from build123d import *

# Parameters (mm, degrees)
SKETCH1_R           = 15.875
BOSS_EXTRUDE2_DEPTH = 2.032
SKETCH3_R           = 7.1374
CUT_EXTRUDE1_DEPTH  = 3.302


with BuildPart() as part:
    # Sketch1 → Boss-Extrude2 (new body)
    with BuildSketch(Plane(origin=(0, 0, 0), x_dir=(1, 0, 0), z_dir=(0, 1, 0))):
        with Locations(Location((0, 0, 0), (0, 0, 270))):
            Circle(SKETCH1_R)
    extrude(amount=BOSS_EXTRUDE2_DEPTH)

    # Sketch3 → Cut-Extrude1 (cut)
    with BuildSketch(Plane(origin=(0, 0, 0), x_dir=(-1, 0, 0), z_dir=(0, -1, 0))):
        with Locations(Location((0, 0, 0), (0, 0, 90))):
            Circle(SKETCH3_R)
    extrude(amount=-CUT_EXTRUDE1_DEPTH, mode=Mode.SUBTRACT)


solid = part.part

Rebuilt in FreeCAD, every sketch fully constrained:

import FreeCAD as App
import Part
import Sketcher

V = App.Vector
Q = App.Units.Quantity

doc = App.newDocument("Part")
body = doc.addObject("PartDesign::Body", "Body")

sketch1 = body.newObject("Sketcher::SketchObject", "Sketch")
sketch1.AttachmentSupport = (doc.getObject("XZ_Plane"), [""])
sketch1.MapMode = "FlatFace"
sketch1.addGeometry(Part.Circle(V(0, 0, 0), V(0, 0, 1), 16), False)
sketch1.addConstraint(Sketcher.Constraint("Coincident", 0, 3, -1, 1))
sketch1.addConstraint(Sketcher.Constraint("Diameter", 0, Q("1.25 in")))
pad1 = body.newObject("PartDesign::Pad", "Pad")
pad1.Profile = sketch1
pad1.Length = Q("0.08 in")
pad1.Reversed = True

sketch2 = body.newObject("Sketcher::SketchObject", "Sketch001")
sketch2.AttachmentSupport = (doc.getObject("XZ_Plane"), [""])
sketch2.MapMode = "FlatFace"
sketch2.addGeometry(Part.Circle(V(0, 0, 0), V(0, 0, 1), 7), False)
sketch2.addConstraint(Sketcher.Constraint("Coincident", 0, 3, -1, 1))
sketch2.addConstraint(Sketcher.Constraint("Diameter", 0, Q("0.562 in")))
pocket1 = body.newObject("PartDesign::Pocket", "Pocket")
pocket1.Profile = sketch2
pocket1.Length = Q("0.13 in")

doc.recompute()
